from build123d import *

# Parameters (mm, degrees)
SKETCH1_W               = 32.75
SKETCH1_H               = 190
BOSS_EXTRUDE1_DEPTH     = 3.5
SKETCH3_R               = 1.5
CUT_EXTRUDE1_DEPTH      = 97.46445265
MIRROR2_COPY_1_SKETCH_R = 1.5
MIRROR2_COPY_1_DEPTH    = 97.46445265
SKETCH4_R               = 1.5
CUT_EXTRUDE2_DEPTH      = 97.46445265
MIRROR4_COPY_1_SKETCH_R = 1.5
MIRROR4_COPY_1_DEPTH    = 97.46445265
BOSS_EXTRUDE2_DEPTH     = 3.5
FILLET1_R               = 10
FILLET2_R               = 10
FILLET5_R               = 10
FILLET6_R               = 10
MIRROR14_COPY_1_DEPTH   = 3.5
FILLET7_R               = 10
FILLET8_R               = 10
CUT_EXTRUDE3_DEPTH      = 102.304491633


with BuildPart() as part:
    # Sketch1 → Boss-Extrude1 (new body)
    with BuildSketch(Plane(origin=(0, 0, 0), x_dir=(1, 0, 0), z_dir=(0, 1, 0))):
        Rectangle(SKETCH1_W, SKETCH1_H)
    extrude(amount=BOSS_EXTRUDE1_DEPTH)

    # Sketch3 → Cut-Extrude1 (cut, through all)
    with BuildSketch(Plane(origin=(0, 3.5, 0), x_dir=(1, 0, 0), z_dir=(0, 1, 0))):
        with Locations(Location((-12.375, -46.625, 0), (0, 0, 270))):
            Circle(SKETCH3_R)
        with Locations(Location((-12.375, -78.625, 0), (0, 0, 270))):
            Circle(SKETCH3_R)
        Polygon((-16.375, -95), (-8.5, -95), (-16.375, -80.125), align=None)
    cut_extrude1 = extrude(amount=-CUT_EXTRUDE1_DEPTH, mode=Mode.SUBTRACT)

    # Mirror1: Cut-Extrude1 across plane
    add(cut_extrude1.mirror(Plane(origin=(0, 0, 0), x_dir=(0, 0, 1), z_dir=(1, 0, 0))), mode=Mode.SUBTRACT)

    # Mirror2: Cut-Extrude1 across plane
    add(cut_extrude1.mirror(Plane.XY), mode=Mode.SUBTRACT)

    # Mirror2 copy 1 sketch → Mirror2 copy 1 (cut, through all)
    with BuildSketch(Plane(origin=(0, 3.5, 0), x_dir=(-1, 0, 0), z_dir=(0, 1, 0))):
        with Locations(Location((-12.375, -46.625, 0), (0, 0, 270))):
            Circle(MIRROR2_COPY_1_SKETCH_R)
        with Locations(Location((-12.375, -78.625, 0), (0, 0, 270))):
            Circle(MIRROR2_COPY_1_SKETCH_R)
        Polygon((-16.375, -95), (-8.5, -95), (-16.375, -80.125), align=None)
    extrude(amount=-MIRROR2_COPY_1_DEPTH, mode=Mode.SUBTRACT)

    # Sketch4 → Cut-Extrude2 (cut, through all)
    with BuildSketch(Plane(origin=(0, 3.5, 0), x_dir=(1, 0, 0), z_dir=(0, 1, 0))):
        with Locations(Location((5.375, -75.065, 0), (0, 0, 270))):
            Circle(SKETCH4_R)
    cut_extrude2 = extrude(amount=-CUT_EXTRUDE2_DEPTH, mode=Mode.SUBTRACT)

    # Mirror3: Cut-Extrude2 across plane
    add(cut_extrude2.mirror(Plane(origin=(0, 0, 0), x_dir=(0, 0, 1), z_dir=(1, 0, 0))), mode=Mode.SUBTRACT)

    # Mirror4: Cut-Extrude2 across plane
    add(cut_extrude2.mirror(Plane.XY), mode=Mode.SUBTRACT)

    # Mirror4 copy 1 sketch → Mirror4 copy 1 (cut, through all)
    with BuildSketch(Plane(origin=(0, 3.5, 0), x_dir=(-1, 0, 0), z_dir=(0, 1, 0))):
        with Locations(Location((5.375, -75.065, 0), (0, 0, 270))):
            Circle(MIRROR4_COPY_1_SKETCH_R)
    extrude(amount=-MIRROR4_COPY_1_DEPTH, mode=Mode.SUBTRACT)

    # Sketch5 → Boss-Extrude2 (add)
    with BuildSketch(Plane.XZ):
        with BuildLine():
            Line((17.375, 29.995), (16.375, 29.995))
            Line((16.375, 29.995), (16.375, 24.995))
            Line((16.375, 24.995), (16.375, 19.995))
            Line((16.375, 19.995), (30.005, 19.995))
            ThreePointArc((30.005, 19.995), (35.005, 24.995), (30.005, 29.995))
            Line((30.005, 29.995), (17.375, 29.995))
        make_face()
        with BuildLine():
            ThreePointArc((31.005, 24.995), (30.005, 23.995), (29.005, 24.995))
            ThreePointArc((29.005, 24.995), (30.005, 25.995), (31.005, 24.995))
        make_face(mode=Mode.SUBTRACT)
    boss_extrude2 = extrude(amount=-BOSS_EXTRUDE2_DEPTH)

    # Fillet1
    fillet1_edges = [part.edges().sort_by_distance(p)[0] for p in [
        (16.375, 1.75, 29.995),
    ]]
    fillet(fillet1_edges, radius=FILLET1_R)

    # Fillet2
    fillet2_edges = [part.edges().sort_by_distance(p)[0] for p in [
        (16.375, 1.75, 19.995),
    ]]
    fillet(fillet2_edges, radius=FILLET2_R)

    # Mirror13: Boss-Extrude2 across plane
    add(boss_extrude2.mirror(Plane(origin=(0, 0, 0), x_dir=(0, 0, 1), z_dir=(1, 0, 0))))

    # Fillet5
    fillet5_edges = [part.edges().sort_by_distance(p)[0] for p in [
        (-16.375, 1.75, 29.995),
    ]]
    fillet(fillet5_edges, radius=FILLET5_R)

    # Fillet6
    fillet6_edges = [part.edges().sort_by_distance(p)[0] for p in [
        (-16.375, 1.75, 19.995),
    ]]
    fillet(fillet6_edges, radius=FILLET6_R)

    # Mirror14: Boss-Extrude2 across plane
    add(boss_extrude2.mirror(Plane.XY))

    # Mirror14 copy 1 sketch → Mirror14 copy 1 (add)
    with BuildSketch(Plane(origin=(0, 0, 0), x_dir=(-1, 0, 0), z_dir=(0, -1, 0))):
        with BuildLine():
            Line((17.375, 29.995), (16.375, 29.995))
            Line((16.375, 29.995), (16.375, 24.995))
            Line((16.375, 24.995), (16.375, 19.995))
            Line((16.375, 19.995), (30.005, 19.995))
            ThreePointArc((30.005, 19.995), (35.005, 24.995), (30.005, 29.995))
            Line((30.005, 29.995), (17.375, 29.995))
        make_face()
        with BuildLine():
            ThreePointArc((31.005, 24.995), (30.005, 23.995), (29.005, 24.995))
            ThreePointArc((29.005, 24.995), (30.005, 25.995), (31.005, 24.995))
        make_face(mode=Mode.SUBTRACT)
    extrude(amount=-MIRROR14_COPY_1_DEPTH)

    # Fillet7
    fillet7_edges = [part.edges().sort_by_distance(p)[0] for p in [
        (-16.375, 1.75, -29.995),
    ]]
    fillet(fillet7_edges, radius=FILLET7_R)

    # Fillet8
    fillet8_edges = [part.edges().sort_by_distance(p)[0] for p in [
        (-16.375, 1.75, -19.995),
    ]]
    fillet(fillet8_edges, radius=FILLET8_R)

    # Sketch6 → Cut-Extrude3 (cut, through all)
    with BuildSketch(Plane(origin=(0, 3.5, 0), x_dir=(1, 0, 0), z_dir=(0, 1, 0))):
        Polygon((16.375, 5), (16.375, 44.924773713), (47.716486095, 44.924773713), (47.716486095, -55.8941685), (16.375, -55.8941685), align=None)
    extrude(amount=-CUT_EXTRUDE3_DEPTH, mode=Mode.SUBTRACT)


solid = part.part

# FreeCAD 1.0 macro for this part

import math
import FreeCAD as App
import Part
import Sketcher
from FreeCAD import Vector
Q = App.Units.Quantity


def edges_at(feature, points):
    """Names of the edges that pass closest to the given points."""
    edges = feature.Shape.Edges
    near = lambda p: min(range(len(edges)), key=lambda i: edges[i].distToShape(Part.Vertex(*p))[0])
    return sorted({f"Edge{near(p) + 1}" for p in points})


def add_polygon(sketch, points):
    """Adds a closed chain of lines whose ends are joined by coincident constraints."""
    first, n = sketch.GeometryCount, len(points)
    for a, b in zip(points, points[1:] + points[:1]):
        sketch.addGeometry(Part.LineSegment(App.Vector(*a, 0), App.Vector(*b, 0)), False)
    for i in range(n):
        sketch.addConstraint(Sketcher.Constraint("Coincident", first + i, 2, first + (i + 1) % n, 1))

doc = App.newDocument("Part")
params = doc.addObject("Spreadsheet::Sheet", "Params")
for row, (alias, value) in enumerate([
    ("sketch1_height", "190 mm"),
    ("sketch1_width", "32.75 mm"),
    ("pad1_length", "3.5 mm"),
    ("sketch2_diameter", "3 mm"),
    ("sketch3_diameter", "3 mm"),
    ("sketch4_diameter", "3 mm"),
    ("sketch5_diameter", "3 mm"),
    ("sketch6_diameter", "2 mm"),
    ("sketch6_radius", "5 mm"),
    ("sketch6_width", "13.63 mm"),
    ("pad2_length", "3.5 mm"),
    ("fillet_radius", "10 mm"),
    ("fillet2_radius", "10 mm"),
    ("fillet3_radius", "10 mm"),
    ("fillet4_radius", "10 mm"),
    ("sketch7_diameter", "2 mm"),
    ("sketch7_radius", "5 mm"),
    ("sketch7_width", "13.63 mm"),
    ("pad3_length", "3.5 mm"),
    ("fillet5_radius", "10 mm"),
    ("fillet6_radius", "10 mm"),
], start=1):
    params.set(f"A{row}", alias)
    params.set(f"B{row}", "=" + value)
    params.setAlias(f"B{row}", alias)

body = doc.addObject("PartDesign::Body", "Body")

sketch1 = body.newObject("Sketcher::SketchObject", "Sketch")
sketch1.AttachmentSupport = (doc.getObject("XZ_Plane"), [""])
sketch1.MapMode = "FlatFace"
add_polygon(sketch1, [(-16.375, -95), (-16.375, 95), (16.375, 95), (16.375, -95)])
sketch1.addConstraint([
    Sketcher.Constraint("Vertical", 0),
    Sketcher.Constraint("Horizontal", 1),
    Sketcher.Constraint("Vertical", 2),
    Sketcher.Constraint("Horizontal", 3),
    Sketcher.Constraint("Symmetric", 0, 2, 2, 2, -1, 1),
    Sketcher.Constraint("DistanceY", 0, 1, 0, 2, Q("190 mm")),
    Sketcher.Constraint("DistanceX", 1, 1, 1, 2, Q("32.75 mm")),
])
sketch1.setExpression("Constraints[9]", "Params.sketch1_height")
sketch1.setExpression("Constraints[10]", "Params.sketch1_width")
pad1 = body.newObject("PartDesign::Pad", "Pad")
pad1.Profile = sketch1
pad1.setExpression("Length", "Params.pad1_length")
pad1.Reversed = True

sketch2 = body.newObject("Sketcher::SketchObject", "Sketch001")
sketch2.AttachmentSupport = (doc.getObject("XZ_Plane"), [""])
sketch2.MapMode = "FlatFace"
sketch2.AttachmentOffset = App.Placement(Vector(0, 0, -3.5), App.Rotation())
sketch2.addGeometry(Part.Circle(Vector(-12.375, 46.625, 0), Vector(0, 0, 1), 1.5), False)
sketch2.addGeometry(Part.Circle(Vector(-12.375, 78.625, 0), Vector(0, 0, 1), 1.5), False)
add_polygon(sketch2, [(-16.375, 95), (-8.5, 95), (-16.375, 80.125)])
sketch2.addConstraint([
    Sketcher.Constraint("Horizontal", 2),
    Sketcher.Constraint("Vertical", 4),
    Sketcher.Constraint("Equal", 0, 1),
    Sketcher.Constraint("Vertical", 0, 3, 1, 3),
    Sketcher.Constraint("Diameter", 0, Q("3 mm")),
    Sketcher.Constraint("DistanceY", -1, 1, 2, 2, Q("95 mm")),
    Sketcher.Constraint("DistanceY", 0, 3, 1, 3, Q("32 mm")),
    Sketcher.Constraint("DistanceX", 3, 2, 1, 3, Q("4 mm")),
    Sketcher.Constraint("DistanceX", 2, 2, -1, 1, Q("8.5 mm")),
    Sketcher.Constraint("DistanceY", 1, 3, 3, 2, Q("1.5 mm")),
    Sketcher.Constraint("DistanceX", 2, 1, 2, 2, Q("7.875 mm")),
    Sketcher.Constraint("DistanceY", 4, 1, 4, 2, Q("14.875 mm")),
])
sketch2.setExpression("Constraints[7]", "Params.sketch2_diameter")
pocket1 = body.newObject("PartDesign::Pocket", "Pocket")
pocket1.Profile = sketch2
pocket1.Type = "ThroughAll"
pocket1.Reversed = True
doc.recompute()

mirrored = body.newObject("PartDesign::Mirrored", "Mirrored")
mirrored.Originals = [pocket1]
mirrored.MirrorPlane = (doc.getObject("YZ_Plane"), [""])
body.Tip = mirrored
doc.recompute()

mirrored2 = body.newObject("PartDesign::Mirrored", "Mirrored001")
mirrored2.Originals = [pocket1]
mirrored2.MirrorPlane = (doc.getObject("XY_Plane"), [""])
body.Tip = mirrored2

sketch3 = body.newObject("Sketcher::SketchObject", "Sketch002")
sketch3.AttachmentSupport = (doc.getObject("XZ_Plane"), [""])
sketch3.MapMode = "FlatFace"
sketch3.AttachmentOffset = App.Placement(Vector(0, 0, -3.5), App.Rotation())
sketch3.addGeometry(Part.Circle(Vector(12.375, -46.625, 0), Vector(0, 0, 1), 1.5), False)
sketch3.addGeometry(Part.Circle(Vector(12.375, -78.625, 0), Vector(0, 0, 1), 1.5), False)
add_polygon(sketch3, [(16.375, -95), (8.5, -95), (16.375, -80.125)])
sketch3.addConstraint([
    Sketcher.Constraint("Horizontal", 2),
    Sketcher.Constraint("Vertical", 4),
    Sketcher.Constraint("Equal", 0, 1),
    Sketcher.Constraint("Vertical", 0, 3, 1, 3),
    Sketcher.Constraint("Diameter", 0, Q("3 mm")),
    Sketcher.Constraint("DistanceY", 2, 2, -1, 1, Q("95 mm")),
    Sketcher.Constraint("DistanceY", 1, 3, 0, 3, Q("32 mm")),
    Sketcher.Constraint("DistanceX", 1, 3, 3, 2, Q("4 mm")),
    Sketcher.Constraint("DistanceX", -1, 1, 2, 2, Q("8.5 mm")),
    Sketcher.Constraint("DistanceY", 3, 2, 1, 3, Q("1.5 mm")),
    Sketcher.Constraint("DistanceX", 2, 2, 2, 1, Q("7.875 mm")),
    Sketcher.Constraint("DistanceY", 4, 2, 4, 1, Q("14.875 mm")),
])
sketch3.setExpression("Constraints[7]", "Params.sketch3_diameter")
pocket2 = body.newObject("PartDesign::Pocket", "Pocket001")
pocket2.Profile = sketch3
pocket2.Type = "ThroughAll"
pocket2.Reversed = True

sketch4 = body.newObject("Sketcher::SketchObject", "Sketch003")
sketch4.AttachmentSupport = (doc.getObject("XZ_Plane"), [""])
sketch4.MapMode = "FlatFace"
sketch4.AttachmentOffset = App.Placement(Vector(0, 0, -3.5), App.Rotation())
sketch4.addGeometry(Part.Circle(Vector(5.375, 75.065, 0), Vector(0, 0, 1), 1.5), False)
sketch4.addConstraint([
    Sketcher.Constraint("Diameter", 0, Q("3 mm")),
    Sketcher.Constraint("DistanceX", -1, 1, 0, 3, Q("5.375 mm")),
    Sketcher.Constraint("DistanceY", -1, 1, 0, 3, Q("75.065 mm")),
])
sketch4.setExpression("Constraints[0]", "Params.sketch4_diameter")
pocket3 = body.newObject("PartDesign::Pocket", "Pocket002")
pocket3.Profile = sketch4
pocket3.Type = "ThroughAll"
pocket3.Reversed = True
doc.recompute()

mirrored3 = body.newObject("PartDesign::Mirrored", "Mirrored002")
mirrored3.Originals = [pocket3]
mirrored3.MirrorPlane = (doc.getObject("YZ_Plane"), [""])
body.Tip = mirrored3
doc.recompute()

mirrored4 = body.newObject("PartDesign::Mirrored", "Mirrored003")
mirrored4.Originals = [pocket3]
mirrored4.MirrorPlane = (doc.getObject("XY_Plane"), [""])
body.Tip = mirrored4

sketch5 = body.newObject("Sketcher::SketchObject", "Sketch004")
sketch5.AttachmentSupport = (doc.getObject("XZ_Plane"), [""])
sketch5.MapMode = "FlatFace"
sketch5.AttachmentOffset = App.Placement(Vector(0, 0, -3.5), App.Rotation())
sketch5.addGeometry(Part.Circle(Vector(-5.375, -75.065, 0), Vector(0, 0, 1), 1.5), False)
sketch5.addConstraint([
    Sketcher.Constraint("Diameter", 0, Q("3 mm")),
    Sketcher.Constraint("DistanceX", 0, 3, -1, 1, Q("5.375 mm")),
    Sketcher.Constraint("DistanceY", 0, 3, -1, 1, Q("75.065 mm")),
])
sketch5.setExpression("Constraints[0]", "Params.sketch5_diameter")
pocket4 = body.newObject("PartDesign::Pocket", "Pocket003")
pocket4.Profile = sketch5
pocket4.Type = "ThroughAll"
pocket4.Reversed = True

sketch6 = body.newObject("Sketcher::SketchObject", "Sketch005")
sketch6.AttachmentSupport = (doc.getObject("XZ_Plane"), [""])
sketch6.MapMode = "FlatFace"
sketch6.addGeometry([
    Part.LineSegment(Vector(16.375, 29.995, 0), Vector(16.375, 19.995, 0)),
    Part.LineSegment(Vector(16.375, 19.995, 0), Vector(30.005, 19.995, 0)),
    Part.ArcOfCircle(Part.Circle(Vector(30.005, 24.995, 0), Vector(0, 0, 1), 5), math.radians(-90), math.radians(90)),
    Part.LineSegment(Vector(30.005, 29.995, 0), Vector(16.375, 29.995, 0)),
    Part.Circle(Vector(30.005, 24.995, 0), Vector(0, 0, 1), 1),
], False)
sketch6.addConstraint([
    Sketcher.Constraint("Coincident", 0, 2, 1, 1),
    Sketcher.Constraint("Tangent", 1, 2, 2, 1),
    Sketcher.Constraint("Tangent", 2, 2, 3, 1),
    Sketcher.Constraint("Coincident", 3, 2, 0, 1),
    Sketcher.Constraint("Vertical", 0),
    Sketcher.Constraint("Horizontal", 1),
    Sketcher.Constraint("Horizontal", 3),
    Sketcher.Constraint("Coincident", 4, 3, 2, 3),
    Sketcher.Constraint("Diameter", 4, Q("2 mm")),
    Sketcher.Constraint("Radius", 2, Q("5 mm")),
    Sketcher.Constraint("DistanceX", 1, 1, 1, 2, Q("13.63 mm")),
    Sketcher.Constraint("DistanceX", -1, 1, 2, 3, Q("30.005 mm")),
    Sketcher.Constraint("DistanceY", -1, 1, 2, 3, Q("24.995 mm")),
])
sketch6.setExpression("Constraints[8]", "Params.sketch6_diameter")
sketch6.setExpression("Constraints[9]", "Params.sketch6_radius")
sketch6.setExpression("Constraints[10]", "Params.sketch6_width")
pad2 = body.newObject("PartDesign::Pad", "Pad001")
pad2.Profile = sketch6
pad2.setExpression("Length", "Params.pad2_length")
pad2.Reversed = True
doc.recompute()

fillet = body.newObject("PartDesign::Fillet", "Fillet")
fillet.Base = (pad2, edges_at(pad2, [(16.375, 1.75, 29.995)]))
fillet.setExpression("Radius", "Params.fillet_radius")
doc.recompute()

fillet2 = body.newObject("PartDesign::Fillet", "Fillet001")
fillet2.Base = (fillet, edges_at(fillet, [(16.375, 1.75, 19.995)]))
fillet2.setExpression("Radius", "Params.fillet2_radius")
doc.recompute()

mirrored5 = body.newObject("PartDesign::Mirrored", "Mirrored004")
mirrored5.Originals = [pad2]
mirrored5.MirrorPlane = (doc.getObject("YZ_Plane"), [""])
body.Tip = mirrored5
doc.recompute()

fillet3 = body.newObject("PartDesign::Fillet", "Fillet002")
fillet3.Base = (mirrored5, edges_at(mirrored5, [(-16.375, 1.75, 29.995)]))
fillet3.setExpression("Radius", "Params.fillet3_radius")
doc.recompute()

fillet4 = body.newObject("PartDesign::Fillet", "Fillet003")
fillet4.Base = (fillet3, edges_at(fillet3, [(-16.375, 1.75, 19.995)]))
fillet4.setExpression("Radius", "Params.fillet4_radius")
doc.recompute()

mirrored6 = body.newObject("PartDesign::Mirrored", "Mirrored005")
mirrored6.Originals = [pad2]
mirrored6.MirrorPlane = (doc.getObject("XY_Plane"), [""])
body.Tip = mirrored6

sketch7 = body.newObject("Sketcher::SketchObject", "Sketch006")
sketch7.AttachmentSupport = (doc.getObject("XZ_Plane"), [""])
sketch7.MapMode = "FlatFace"
sketch7.addGeometry([
    Part.LineSegment(Vector(-16.375, -29.995, 0), Vector(-16.375, -19.995, 0)),
    Part.LineSegment(Vector(-16.375, -19.995, 0), Vector(-30.005, -19.995, 0)),
    Part.ArcOfCircle(Part.Circle(Vector(-30.005, -24.995, 0), Vector(0, 0, 1), 5), math.radians(90), math.radians(270)),
    Part.LineSegment(Vector(-30.005, -29.995, 0), Vector(-16.375, -29.995, 0)),
    Part.Circle(Vector(-30.005, -24.995, 0), Vector(0, 0, 1), 1),
], False)
sketch7.addConstraint([
    Sketcher.Constraint("Coincident", 0, 2, 1, 1),
    Sketcher.Constraint("Tangent", 1, 2, 2, 1),
    Sketcher.Constraint("Tangent", 2, 2, 3, 1),
    Sketcher.Constraint("Coincident", 3, 2, 0, 1),
    Sketcher.Constraint("Vertical", 0),
    Sketcher.Constraint("Horizontal", 1),
    Sketcher.Constraint("Horizontal", 3),
    Sketcher.Constraint("Coincident", 4, 3, 2, 3),
    Sketcher.Constraint("Diameter", 4, Q("2 mm")),
    Sketcher.Constraint("Radius", 2, Q("5 mm")),
    Sketcher.Constraint("DistanceX", 1, 2, 1, 1, Q("13.63 mm")),
    Sketcher.Constraint("DistanceX", 2, 3, -1, 1, Q("30.005 mm")),
    Sketcher.Constraint("DistanceY", 2, 3, -1, 1, Q("24.995 mm")),
])
sketch7.setExpression("Constraints[8]", "Params.sketch7_diameter")
sketch7.setExpression("Constraints[9]", "Params.sketch7_radius")
sketch7.setExpression("Constraints[10]", "Params.sketch7_width")
pad3 = body.newObject("PartDesign::Pad", "Pad002")
pad3.Profile = sketch7
pad3.setExpression("Length", "Params.pad3_length")
pad3.Reversed = True
doc.recompute()

fillet5 = body.newObject("PartDesign::Fillet", "Fillet004")
fillet5.Base = (pad3, edges_at(pad3, [(-16.375, 1.75, -29.995)]))
fillet5.setExpression("Radius", "Params.fillet5_radius")
doc.recompute()

fillet6 = body.newObject("PartDesign::Fillet", "Fillet005")
fillet6.Base = (fillet5, edges_at(fillet5, [(-16.375, 1.75, -19.995)]))
fillet6.setExpression("Radius", "Params.fillet6_radius")

sketch8 = body.newObject("Sketcher::SketchObject", "Sketch007")
sketch8.AttachmentSupport = (doc.getObject("XZ_Plane"), [""])
sketch8.MapMode = "FlatFace"
sketch8.AttachmentOffset = App.Placement(Vector(0, 0, -3.5), App.Rotation())
add_polygon(sketch8, [(16.375, -44.924774), (16.375, 55.894168), (47.716486, 55.894168), (47.716486, -44.924774)])
sketch8.addConstraint([
    Sketcher.Constraint("Vertical", 0),
    Sketcher.Constraint("Horizontal", 1),
    Sketcher.Constraint("Vertical", 2),
    Sketcher.Constraint("Horizontal", 3),
    Sketcher.Constraint("DistanceX", -1, 1, 0, 2, Q("16.375 mm")),
    Sketcher.Constraint("DistanceX", 1, 1, 1, 2, Q("31.341486 mm")),
    Sketcher.Constraint("DistanceY", 0, 1, 0, 2, Q("100.818942 mm")),
    Sketcher.Constraint("DistanceY", -1, 1, 0, 2, Q("55.894168 mm")),
])
pocket5 = body.newObject("PartDesign::Pocket", "Pocket004")
pocket5.Profile = sketch8
pocket5.Type = "ThroughAll"
pocket5.Reversed = True

doc.recompute()
